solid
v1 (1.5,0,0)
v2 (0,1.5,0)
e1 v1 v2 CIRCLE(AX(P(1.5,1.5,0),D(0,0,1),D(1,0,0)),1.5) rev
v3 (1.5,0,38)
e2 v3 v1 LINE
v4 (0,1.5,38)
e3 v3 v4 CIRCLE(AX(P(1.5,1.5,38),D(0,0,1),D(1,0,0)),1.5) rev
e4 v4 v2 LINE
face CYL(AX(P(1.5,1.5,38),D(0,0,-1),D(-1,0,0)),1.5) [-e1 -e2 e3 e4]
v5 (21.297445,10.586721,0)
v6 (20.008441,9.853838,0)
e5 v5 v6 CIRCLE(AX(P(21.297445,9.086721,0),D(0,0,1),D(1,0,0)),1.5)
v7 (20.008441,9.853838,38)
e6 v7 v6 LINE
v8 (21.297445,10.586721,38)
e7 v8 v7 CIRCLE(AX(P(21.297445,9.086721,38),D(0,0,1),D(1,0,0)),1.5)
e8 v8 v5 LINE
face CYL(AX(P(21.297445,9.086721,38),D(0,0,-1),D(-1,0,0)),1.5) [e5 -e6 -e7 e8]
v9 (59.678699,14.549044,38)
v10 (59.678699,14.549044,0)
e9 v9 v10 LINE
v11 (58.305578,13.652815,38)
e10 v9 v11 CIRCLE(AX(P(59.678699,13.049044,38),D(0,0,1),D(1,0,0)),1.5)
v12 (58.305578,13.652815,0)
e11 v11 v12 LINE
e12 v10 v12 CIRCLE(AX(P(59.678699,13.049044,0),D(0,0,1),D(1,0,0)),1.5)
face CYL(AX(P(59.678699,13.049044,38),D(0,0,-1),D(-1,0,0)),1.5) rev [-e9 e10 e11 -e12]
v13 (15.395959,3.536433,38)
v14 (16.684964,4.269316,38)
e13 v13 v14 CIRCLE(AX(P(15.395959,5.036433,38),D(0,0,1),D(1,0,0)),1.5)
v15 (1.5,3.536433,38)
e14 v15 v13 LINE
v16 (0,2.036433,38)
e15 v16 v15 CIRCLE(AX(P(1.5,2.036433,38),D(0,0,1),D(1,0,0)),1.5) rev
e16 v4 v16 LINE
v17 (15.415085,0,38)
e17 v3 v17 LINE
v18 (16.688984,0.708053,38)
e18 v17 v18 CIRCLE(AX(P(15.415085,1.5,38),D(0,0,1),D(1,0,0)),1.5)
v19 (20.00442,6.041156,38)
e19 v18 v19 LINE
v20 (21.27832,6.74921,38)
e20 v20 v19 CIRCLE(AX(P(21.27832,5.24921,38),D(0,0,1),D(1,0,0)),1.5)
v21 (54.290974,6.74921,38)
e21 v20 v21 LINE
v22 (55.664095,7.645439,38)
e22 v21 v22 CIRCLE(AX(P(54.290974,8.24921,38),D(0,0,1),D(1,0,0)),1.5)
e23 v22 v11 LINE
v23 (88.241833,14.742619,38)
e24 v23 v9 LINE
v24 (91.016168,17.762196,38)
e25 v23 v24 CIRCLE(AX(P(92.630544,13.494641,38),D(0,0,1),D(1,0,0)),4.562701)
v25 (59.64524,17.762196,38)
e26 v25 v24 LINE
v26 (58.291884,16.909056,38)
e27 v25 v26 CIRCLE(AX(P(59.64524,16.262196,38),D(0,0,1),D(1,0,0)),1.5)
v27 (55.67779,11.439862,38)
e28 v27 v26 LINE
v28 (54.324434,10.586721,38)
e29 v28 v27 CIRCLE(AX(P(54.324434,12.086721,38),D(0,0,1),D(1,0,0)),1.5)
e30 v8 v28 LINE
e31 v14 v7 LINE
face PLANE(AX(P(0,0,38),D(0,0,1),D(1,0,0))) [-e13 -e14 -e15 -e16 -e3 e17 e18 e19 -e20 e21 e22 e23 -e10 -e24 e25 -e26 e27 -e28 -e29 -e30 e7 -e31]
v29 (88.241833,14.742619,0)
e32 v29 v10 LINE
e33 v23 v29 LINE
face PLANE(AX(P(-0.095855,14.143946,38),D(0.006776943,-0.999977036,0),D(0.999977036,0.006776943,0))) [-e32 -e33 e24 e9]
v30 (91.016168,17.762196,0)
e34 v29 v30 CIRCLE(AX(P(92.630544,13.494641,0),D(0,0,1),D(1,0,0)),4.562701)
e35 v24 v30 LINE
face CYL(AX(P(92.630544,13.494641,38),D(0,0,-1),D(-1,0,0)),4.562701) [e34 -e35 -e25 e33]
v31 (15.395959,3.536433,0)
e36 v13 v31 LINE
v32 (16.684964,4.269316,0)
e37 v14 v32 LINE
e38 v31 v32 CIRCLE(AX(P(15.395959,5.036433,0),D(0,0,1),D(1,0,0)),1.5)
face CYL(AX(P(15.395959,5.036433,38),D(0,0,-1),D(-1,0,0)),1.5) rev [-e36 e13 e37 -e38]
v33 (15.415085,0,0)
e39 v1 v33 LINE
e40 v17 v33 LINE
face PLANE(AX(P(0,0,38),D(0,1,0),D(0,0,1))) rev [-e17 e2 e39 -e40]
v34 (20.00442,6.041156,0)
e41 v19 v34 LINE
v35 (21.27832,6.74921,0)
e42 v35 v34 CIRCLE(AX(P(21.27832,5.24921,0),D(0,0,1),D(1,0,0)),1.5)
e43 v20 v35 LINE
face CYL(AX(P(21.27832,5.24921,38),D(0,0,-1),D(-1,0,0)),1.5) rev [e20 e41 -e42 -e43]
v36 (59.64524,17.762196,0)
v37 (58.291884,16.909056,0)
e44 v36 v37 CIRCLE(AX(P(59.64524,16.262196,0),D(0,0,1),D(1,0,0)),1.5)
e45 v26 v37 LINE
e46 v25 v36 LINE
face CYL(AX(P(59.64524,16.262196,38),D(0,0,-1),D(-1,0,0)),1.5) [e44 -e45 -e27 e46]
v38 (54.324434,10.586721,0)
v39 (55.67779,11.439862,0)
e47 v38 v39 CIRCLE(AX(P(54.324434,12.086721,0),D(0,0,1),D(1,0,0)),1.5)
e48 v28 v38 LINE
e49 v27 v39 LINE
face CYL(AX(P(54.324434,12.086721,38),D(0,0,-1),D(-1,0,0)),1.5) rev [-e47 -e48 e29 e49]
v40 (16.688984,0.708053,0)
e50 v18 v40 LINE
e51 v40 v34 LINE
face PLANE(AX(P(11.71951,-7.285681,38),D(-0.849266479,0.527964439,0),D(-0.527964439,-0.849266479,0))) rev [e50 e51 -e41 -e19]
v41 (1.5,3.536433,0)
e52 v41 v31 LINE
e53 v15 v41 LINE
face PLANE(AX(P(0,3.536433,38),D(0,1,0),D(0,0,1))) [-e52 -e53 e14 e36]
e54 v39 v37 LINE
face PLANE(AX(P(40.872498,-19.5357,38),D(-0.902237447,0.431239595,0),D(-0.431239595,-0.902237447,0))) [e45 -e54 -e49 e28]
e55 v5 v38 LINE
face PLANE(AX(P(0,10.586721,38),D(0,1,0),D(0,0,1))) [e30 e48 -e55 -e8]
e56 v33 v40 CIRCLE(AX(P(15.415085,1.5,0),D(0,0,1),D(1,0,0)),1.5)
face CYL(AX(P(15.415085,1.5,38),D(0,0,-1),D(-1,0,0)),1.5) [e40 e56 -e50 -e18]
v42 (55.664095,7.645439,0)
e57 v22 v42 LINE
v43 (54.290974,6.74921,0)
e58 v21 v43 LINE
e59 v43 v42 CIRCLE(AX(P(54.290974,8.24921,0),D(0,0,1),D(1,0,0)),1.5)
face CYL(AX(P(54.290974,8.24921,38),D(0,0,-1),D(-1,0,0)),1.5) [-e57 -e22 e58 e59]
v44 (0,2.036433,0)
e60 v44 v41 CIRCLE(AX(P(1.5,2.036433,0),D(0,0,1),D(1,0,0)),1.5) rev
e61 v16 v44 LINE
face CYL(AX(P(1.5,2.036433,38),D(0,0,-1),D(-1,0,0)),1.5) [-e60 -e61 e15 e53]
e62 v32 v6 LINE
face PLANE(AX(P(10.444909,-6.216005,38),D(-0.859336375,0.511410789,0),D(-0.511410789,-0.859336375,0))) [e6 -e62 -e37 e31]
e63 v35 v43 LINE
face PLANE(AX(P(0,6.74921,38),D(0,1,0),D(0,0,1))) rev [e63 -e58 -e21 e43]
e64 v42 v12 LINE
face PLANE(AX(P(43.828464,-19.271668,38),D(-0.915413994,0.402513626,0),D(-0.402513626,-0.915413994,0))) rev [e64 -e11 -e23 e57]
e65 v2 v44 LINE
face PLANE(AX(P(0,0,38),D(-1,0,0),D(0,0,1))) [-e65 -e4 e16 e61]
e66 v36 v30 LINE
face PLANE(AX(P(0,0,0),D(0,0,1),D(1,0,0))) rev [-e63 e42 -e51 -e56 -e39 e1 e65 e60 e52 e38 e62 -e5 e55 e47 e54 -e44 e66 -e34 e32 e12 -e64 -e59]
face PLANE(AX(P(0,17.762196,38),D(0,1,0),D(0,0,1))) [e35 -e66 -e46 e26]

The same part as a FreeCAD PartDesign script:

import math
import FreeCAD as App
import Part
import Sketcher

V = App.Vector

doc = App.newDocument("Part")
body = doc.addObject("PartDesign::Body", "Body")

# Sketch on XY plane
sketch1 = body.newObject("Sketcher::SketchObject", "Sketch")
sketch1.AttachmentSupport = (doc.getObject("XY_Plane"), [""])
sketch1.MapMode = "FlatFace"
sketch1.addGeometry([
    Part.ArcOfCircle(Part.Circle(V(92.6, 13.5, 0), V(0, 0, 1), 4.6), math.radians(164), math.radians(471)),  # 0
    Part.LineSegment(V(91, 17.8, 0), V(59.6, 17.8, 0)),  # 1
    Part.ArcOfCircle(Part.Circle(V(59.6, 16.3, 0), V(0, 0, 1), 1.5), math.radians(90), math.radians(154)),  # 2
    Part.LineSegment(V(58.3, 16.9, 0), V(55.7, 11.4, 0)),  # 3
    Part.ArcOfCircle(Part.Circle(V(54.3, 12.1, 0), V(0, 0, 1), 1.5), math.radians(-90), math.radians(-26)),  # 4
    Part.LineSegment(V(54.3, 10.6, 0), V(21.3, 10.6, 0)),  # 5
    Part.ArcOfCircle(Part.Circle(V(21.3, 9.1, 0), V(0, 0, 1), 1.5), math.radians(90), math.radians(149)),  # 6
    Part.LineSegment(V(20, 9.9, 0), V(16.7, 4.3, 0)),  # 7
    Part.ArcOfCircle(Part.Circle(V(15.4, 5, 0), V(0, 0, 1), 1.5), math.radians(-90), math.radians(-31)),  # 8
    Part.LineSegment(V(15.4, 3.5, 0), V(1.5, 3.5, 0)),  # 9
    Part.ArcOfCircle(Part.Circle(V(1.5, 2, 0), V(0, 0, 1), 1.5), math.radians(90), math.radians(180)),  # 10
    Part.LineSegment(V(0, 2, 0), V(0, 1.5, 0)),  # 11
    Part.ArcOfCircle(Part.Circle(V(1.5, 1.5, 0), V(0, 0, 1), 1.5), math.radians(180), math.radians(270)),  # 12
    Part.LineSegment(V(1.5, 0, 0), V(15.4, 0, 0)),  # 13
    Part.ArcOfCircle(Part.Circle(V(15.4, 1.5, 0), V(0, 0, 1), 1.5), math.radians(-90), math.radians(-32)),  # 14
    Part.LineSegment(V(16.7, 0.7, 0), V(20, 6, 0)),  # 15
    Part.ArcOfCircle(Part.Circle(V(21.3, 5.2, 0), V(0, 0, 1), 1.5), math.radians(90), math.radians(148)),  # 16
    Part.LineSegment(V(21.3, 6.7, 0), V(54.3, 6.7, 0)),  # 17
    Part.ArcOfCircle(Part.Circle(V(54.3, 8.2, 0), V(0, 0, 1), 1.5), math.radians(-90), math.radians(-24)),  # 18
    Part.LineSegment(V(55.7, 7.6, 0), V(58.3, 13.7, 0)),  # 19
    Part.ArcOfCircle(Part.Circle(V(59.7, 13, 0), V(0, 0, 1), 1.5), math.radians(90), math.radians(156)),  # 20
    Part.LineSegment(V(59.7, 14.5, 0), V(88.2, 14.7, 0)),  # 21
], False)
sketch1.addConstraint([
    Sketcher.Constraint("Coincident", 0, 2, 1, 1),
    Sketcher.Constraint("Tangent", 1, 2, 2, 1),
    Sketcher.Constraint("Tangent", 2, 2, 3, 1),
    Sketcher.Constraint("Tangent", 3, 2, 4, 2),
    Sketcher.Constraint("Tangent", 4, 1, 5, 1),
    Sketcher.Constraint("Tangent", 5, 2, 6, 1),
    Sketcher.Constraint("Tangent", 6, 2, 7, 1),
    Sketcher.Constraint("Tangent", 7, 2, 8, 2),
    Sketcher.Constraint("Tangent", 8, 1, 9, 1),
    Sketcher.Constraint("Tangent", 9, 2, 10, 1),
    Sketcher.Constraint("Tangent", 10, 2, 11, 1),
    Sketcher.Constraint("Tangent", 11, 2, 12, 1),
    Sketcher.Constraint("Tangent", 12, 2, 13, 1),
    Sketcher.Constraint("Tangent", 13, 2, 14, 1),
    Sketcher.Constraint("Tangent", 14, 2, 15, 1),
    Sketcher.Constraint("Tangent", 15, 2, 16, 2),
    Sketcher.Constraint("Tangent", 16, 1, 17, 1),
    Sketcher.Constraint("Tangent", 17, 2, 18, 1),
    Sketcher.Constraint("Tangent", 18, 2, 19, 1),
    Sketcher.Constraint("Tangent", 19, 2, 20, 2),
    Sketcher.Constraint("Coincident", 20, 1, 21, 1),
    Sketcher.Constraint("Coincident", 21, 2, 0, 1),
    Sketcher.Constraint("Horizontal", 1),
    Sketcher.Constraint("Horizontal", 5),
    Sketcher.Constraint("Horizontal", 9),
    Sketcher.Constraint("Vertical", 11),
    Sketcher.Constraint("Horizontal", 13),
    Sketcher.Constraint("Horizontal", 17),
    Sketcher.Constraint("Equal", 2, 4),
    Sketcher.Constraint("Equal", 4, 6),
    Sketcher.Constraint("Equal", 6, 8),
    Sketcher.Constraint("Equal", 8, 10),
    Sketcher.Constraint("Equal", 10, 12),
    Sketcher.Constraint("Equal", 12, 14),
    Sketcher.Constraint("Equal", 14, 16),
    Sketcher.Constraint("Equal", 16, 18),
    Sketcher.Constraint("Equal", 18, 20),
    Sketcher.Constraint("PointOnObject", 10, 2, -2),
    Sketcher.Constraint("PointOnObject", 12, 2, -1),
    Sketcher.Constraint("Radius", 2, 1.5),
    Sketcher.Constraint("Radius", 0, 4.562701),
    Sketcher.Constraint("DistanceX", 1, 2, 1, 1, 31.370928),
    Sketcher.Constraint("DistanceX", 5, 2, 5, 1, 33.026989),
    Sketcher.Constraint("DistanceX", 9, 2, 9, 1, 13.895959),
    Sketcher.Constraint("DistanceX", -1, 1, 20, 3, 59.678699),
    Sketcher.Constraint("DistanceX", -1, 1, 20, 1, 59.678699),
    Sketcher.Constraint("DistanceX", 6, 3, 0, 3, 71.333099),
    Sketcher.Constraint("DistanceX", 13, 2, 14, 2, 1.2739),
    Sketcher.Constraint("Distance", 3, 6.061812),
    Sketcher.Constraint("Distance", 19, 6.562468),
    Sketcher.Constraint("Distance", 21, 28.563789),
    Sketcher.Constraint("DistanceX", 13, 1, 13, 2, 13.915085),
    Sketcher.Constraint("DistanceX", 17, 1, 17, 2, 33.012654),
    Sketcher.Constraint("DistanceY", 11, 2, 11, 1, 0.536433),
    Sketcher.Constraint("DistanceY", -1, 1, 0, 3, 13.494641),
    Sketcher.Constraint("DistanceX", -1, 1, 2, 3, 59.64524),
    Sketcher.Constraint("DistanceY", -1, 1, 4, 3, 12.086721),
    Sketcher.Constraint("DistanceX", -1, 1, 16, 3, 21.27832),
])
pad1 = body.newObject("PartDesign::Pad", "Pad")
pad1.Profile = sketch1
pad1.Length = 38

doc.recompute()
